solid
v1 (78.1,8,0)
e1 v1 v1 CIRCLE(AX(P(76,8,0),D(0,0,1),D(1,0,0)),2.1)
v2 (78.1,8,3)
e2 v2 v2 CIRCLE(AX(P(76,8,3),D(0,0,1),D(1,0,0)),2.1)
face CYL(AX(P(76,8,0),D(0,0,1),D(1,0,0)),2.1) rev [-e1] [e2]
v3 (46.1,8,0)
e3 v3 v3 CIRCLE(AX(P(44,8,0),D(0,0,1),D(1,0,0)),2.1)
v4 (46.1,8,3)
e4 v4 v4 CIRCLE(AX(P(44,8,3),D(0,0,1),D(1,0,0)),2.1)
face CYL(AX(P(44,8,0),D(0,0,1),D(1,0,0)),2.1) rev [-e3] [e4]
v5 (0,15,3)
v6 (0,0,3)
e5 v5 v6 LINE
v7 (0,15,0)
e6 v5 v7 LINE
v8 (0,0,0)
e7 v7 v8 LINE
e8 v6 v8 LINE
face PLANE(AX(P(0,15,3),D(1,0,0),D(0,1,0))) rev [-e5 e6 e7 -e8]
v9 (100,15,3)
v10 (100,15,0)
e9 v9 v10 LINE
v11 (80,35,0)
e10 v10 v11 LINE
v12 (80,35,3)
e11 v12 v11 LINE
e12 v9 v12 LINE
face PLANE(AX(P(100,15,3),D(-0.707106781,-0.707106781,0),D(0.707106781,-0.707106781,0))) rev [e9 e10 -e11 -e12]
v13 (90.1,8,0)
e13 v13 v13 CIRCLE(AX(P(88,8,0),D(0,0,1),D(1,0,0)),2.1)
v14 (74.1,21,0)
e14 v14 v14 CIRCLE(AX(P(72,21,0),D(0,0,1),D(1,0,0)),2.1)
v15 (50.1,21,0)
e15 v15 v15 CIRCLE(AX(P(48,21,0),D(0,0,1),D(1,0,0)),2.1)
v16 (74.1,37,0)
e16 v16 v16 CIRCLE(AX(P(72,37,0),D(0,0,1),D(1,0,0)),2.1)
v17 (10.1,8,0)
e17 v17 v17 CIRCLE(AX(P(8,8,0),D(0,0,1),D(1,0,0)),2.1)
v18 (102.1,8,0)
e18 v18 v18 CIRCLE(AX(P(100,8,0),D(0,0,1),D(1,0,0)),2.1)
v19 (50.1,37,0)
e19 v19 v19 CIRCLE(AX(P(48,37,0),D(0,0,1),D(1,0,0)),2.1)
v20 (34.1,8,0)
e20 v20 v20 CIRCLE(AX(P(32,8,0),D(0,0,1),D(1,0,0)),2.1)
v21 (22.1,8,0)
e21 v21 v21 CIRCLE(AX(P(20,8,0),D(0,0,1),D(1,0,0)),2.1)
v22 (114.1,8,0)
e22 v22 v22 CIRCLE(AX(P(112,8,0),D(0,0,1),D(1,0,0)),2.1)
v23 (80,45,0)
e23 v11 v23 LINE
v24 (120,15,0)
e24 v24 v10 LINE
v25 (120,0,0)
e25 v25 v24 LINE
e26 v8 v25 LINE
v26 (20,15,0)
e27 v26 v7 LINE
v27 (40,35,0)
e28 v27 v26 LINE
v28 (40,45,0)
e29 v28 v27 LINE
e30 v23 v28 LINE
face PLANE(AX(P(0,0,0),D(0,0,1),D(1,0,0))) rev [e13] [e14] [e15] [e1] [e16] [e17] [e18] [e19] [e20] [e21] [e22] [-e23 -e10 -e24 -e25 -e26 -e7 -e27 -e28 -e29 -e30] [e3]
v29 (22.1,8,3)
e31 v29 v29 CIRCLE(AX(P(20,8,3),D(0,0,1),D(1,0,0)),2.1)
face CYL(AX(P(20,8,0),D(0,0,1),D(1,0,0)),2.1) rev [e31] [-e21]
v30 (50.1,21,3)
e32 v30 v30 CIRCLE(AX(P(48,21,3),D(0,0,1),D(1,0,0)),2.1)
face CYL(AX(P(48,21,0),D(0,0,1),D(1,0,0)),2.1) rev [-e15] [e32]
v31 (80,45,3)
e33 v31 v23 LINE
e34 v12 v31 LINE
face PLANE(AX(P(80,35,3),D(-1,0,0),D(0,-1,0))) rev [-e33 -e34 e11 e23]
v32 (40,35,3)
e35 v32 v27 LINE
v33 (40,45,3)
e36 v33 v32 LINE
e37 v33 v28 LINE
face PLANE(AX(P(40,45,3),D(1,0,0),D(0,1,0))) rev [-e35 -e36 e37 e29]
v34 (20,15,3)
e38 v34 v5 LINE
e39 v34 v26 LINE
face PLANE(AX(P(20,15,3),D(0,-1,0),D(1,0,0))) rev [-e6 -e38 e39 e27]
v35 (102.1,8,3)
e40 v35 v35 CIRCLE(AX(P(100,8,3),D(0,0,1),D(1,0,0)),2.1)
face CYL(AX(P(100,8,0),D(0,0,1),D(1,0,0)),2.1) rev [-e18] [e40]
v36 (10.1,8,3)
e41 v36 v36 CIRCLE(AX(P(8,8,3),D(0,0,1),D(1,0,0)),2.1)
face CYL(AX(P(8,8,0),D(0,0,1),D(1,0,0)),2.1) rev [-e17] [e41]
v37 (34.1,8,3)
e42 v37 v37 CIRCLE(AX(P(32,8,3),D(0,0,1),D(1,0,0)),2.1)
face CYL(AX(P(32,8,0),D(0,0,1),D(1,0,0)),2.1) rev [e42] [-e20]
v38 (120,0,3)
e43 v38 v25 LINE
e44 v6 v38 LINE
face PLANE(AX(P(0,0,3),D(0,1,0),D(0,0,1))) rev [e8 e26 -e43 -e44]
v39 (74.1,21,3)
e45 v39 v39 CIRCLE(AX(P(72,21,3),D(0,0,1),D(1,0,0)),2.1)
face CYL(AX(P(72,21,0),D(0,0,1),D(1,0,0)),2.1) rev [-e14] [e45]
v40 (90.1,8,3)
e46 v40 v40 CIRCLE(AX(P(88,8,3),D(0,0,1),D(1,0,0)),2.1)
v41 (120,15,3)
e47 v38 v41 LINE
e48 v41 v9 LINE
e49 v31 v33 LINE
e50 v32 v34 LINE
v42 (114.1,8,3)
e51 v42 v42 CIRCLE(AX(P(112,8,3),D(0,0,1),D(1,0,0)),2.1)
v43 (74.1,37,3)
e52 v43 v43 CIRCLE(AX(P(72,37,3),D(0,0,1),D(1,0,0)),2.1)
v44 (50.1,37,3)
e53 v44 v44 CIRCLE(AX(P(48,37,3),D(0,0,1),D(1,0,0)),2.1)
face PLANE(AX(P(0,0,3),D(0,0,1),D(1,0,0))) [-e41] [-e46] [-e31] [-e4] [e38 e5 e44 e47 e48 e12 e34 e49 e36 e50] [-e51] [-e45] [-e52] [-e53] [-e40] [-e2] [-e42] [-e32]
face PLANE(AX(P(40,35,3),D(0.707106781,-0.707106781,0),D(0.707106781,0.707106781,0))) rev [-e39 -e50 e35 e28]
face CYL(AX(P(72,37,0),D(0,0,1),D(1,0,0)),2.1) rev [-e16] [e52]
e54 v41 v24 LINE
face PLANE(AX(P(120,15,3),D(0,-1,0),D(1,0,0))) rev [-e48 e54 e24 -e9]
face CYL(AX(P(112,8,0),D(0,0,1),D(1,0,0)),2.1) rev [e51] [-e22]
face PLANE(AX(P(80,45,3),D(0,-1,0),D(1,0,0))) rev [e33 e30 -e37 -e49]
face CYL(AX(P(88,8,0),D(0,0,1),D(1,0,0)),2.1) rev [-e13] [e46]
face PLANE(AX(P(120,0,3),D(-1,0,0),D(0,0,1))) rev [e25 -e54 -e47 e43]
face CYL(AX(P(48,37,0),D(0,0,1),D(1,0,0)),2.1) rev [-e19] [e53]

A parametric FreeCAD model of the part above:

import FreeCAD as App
import Part
import Sketcher
from FreeCAD import Vector
Q = App.Units.Quantity


def add_polygon(sketch, points):
    """Adds a closed chain of lines whose ends are joined by coincident constraints."""
    first, n = sketch.GeometryCount, len(points)
    for a, b in zip(points, points[1:] + points[:1]):
        sketch.addGeometry(Part.LineSegment(App.Vector(*a, 0), App.Vector(*b, 0)), False)
    for i in range(n):
        sketch.addConstraint(Sketcher.Constraint("Coincident", first + i, 2, first + (i + 1) % n, 1))

doc = App.newDocument("Part")
body = doc.addObject("PartDesign::Body", "Body")

# Sketch on XY plane
sketch1 = body.newObject("Sketcher::SketchObject", "Sketch")
sketch1.AttachmentSupport = (doc.getObject("XY_Plane"), [""])
sketch1.MapMode = "FlatFace"
add_polygon(sketch1, [(0, 0), (120, 0), (120, 15), (100, 15), (80, 35), (80, 45), (40, 45), (40, 35), (20, 15), (0, 15)])  # lines 0-9
sketch1.addConstraint(Sketcher.Constraint("Horizontal", 0))
sketch1.addConstraint(Sketcher.Constraint("Vertical", 1))
sketch1.addConstraint(Sketcher.Constraint("Horizontal", 2))
sketch1.addConstraint(Sketcher.Constraint("Vertical", 4))
sketch1.addConstraint(Sketcher.Constraint("Horizontal", 5))
sketch1.addConstraint(Sketcher.Constraint("Vertical", 6))
sketch1.addConstraint(Sketcher.Constraint("Horizontal", 8))
sketch1.addConstraint(Sketcher.Constraint("Vertical", 9))
sketch1.addConstraint(Sketcher.Constraint("Coincident", 9, 2, -1, 1))
sketch1.addConstraint(Sketcher.Constraint("Perpendicular", 3, 7))
sketch1.addConstraint(Sketcher.Constraint("Horizontal", 3, 2, 6, 2))
sketch1.addConstraint(Sketcher.Constraint("Horizontal", 2, 2, 7, 2))
sketch1.addConstraint(Sketcher.Constraint("Equal", 2, 8))
sketch1.addConstraint(Sketcher.Constraint("Equal", 3, 7))
sketch1.addConstraint(Sketcher.Constraint("DistanceX", 0, 1, 0, 2, Q("120 mm")))
sketch1.addConstraint(Sketcher.Constraint("DistanceX", 2, 2, 2, 1, Q("20 mm")))
sketch1.addConstraint(Sketcher.Constraint("DistanceX", 5, 2, 5, 1, Q("40 mm")))
sketch1.addConstraint(Sketcher.Constraint("DistanceY", 1, 1, 1, 2, Q("15 mm")))
sketch1.addConstraint(Sketcher.Constraint("DistanceY", 4, 1, 4, 2, Q("10 mm")))
pad1 = body.newObject("PartDesign::Pad", "Pad")
pad1.Profile = sketch1
pad1.Length = 3

# Sketch on XY plane
sketch2 = body.newObject("Sketcher::SketchObject", "Sketch001")
sketch2.AttachmentSupport = (doc.getObject("XY_Plane"), [""])
sketch2.MapMode = "FlatFace"
sketch2.AttachmentOffset = App.Placement(Vector(0, 0, 3), App.Rotation())
sketch2.addGeometry(Part.Circle(Vector(48, 37, 0), Vector(0, 0, 1), 2.1), False)
sketch2.addGeometry(Part.Circle(Vector(72, 37, 0), Vector(0, 0, 1), 2.1), False)
sketch2.addGeometry(Part.Circle(Vector(48, 21, 0), Vector(0, 0, 1), 2.1), False)
sketch2.addGeometry(Part.Circle(Vector(72, 21, 0), Vector(0, 0, 1), 2.1), False)
sketch2.addGeometry(Part.Circle(Vector(8, 8, 0), Vector(0, 0, 1), 2.1), False)
sketch2.addGeometry(Part.Circle(Vector(20, 8, 0), Vector(0, 0, 1), 2.1), False)
sketch2.addGeometry(Part.Circle(Vector(100, 8, 0), Vector(0, 0, 1), 2.1), False)
sketch2.addGeometry(Part.Circle(Vector(112, 8, 0), Vector(0, 0, 1), 2.1), False)
sketch2.addConstraint(Sketcher.Constraint("Equal", 0, 1))
sketch2.addConstraint(Sketcher.Constraint("Equal", 1, 2))
sketch2.addConstraint(Sketcher.Constraint("Equal", 2, 3))
sketch2.addConstraint(Sketcher.Constraint("Equal", 3, 4))
sketch2.addConstraint(Sketcher.Constraint("Equal", 4, 5))
sketch2.addConstraint(Sketcher.Constraint("Equal", 5, 6))
sketch2.addConstraint(Sketcher.Constraint("Equal", 6, 7))
sketch2.addConstraint(Sketcher.Constraint("Horizontal", 0, 3, 1, 3))
sketch2.addConstraint(Sketcher.Constraint("Horizontal", 2, 3, 3, 3))
sketch2.addConstraint(Sketcher.Constraint("Horizontal", 4, 3, 5, 3))
sketch2.addConstraint(Sketcher.Constraint("Horizontal", 5, 3, 6, 3))
sketch2.addConstraint(Sketcher.Constraint("Horizontal", 6, 3, 7, 3))
sketch2.addConstraint(Sketcher.Constraint("Vertical", 0, 3, 2, 3))
sketch2.addConstraint(Sketcher.Constraint("Vertical", 1, 3, 3, 3))
sketch2.addConstraint(Sketcher.Constraint("Diameter", 0, Q("4.2 mm")))
sketch2.addConstraint(Sketcher.Constraint("DistanceX", -1, 1, 0, 3, Q("48 mm")))
sketch2.addConstraint(Sketcher.Constraint("DistanceY", -1, 1, 0, 3, Q("37 mm")))
sketch2.addConstraint(Sketcher.Constraint("DistanceX", -1, 1, 1, 3, Q("72 mm")))
sketch2.addConstraint(Sketcher.Constraint("DistanceY", -1, 1, 2, 3, Q("21 mm")))
sketch2.addConstraint(Sketcher.Constraint("DistanceX", -1, 1, 4, 3, Q("8 mm")))
sketch2.addConstraint(Sketcher.Constraint("DistanceY", -1, 1, 4, 3, Q("8 mm")))
sketch2.addConstraint(Sketcher.Constraint("DistanceX", -1, 1, 5, 3, Q("20 mm")))
sketch2.addConstraint(Sketcher.Constraint("DistanceX", -1, 1, 6, 3, Q("100 mm")))
sketch2.addConstraint(Sketcher.Constraint("DistanceX", -1, 1, 7, 3, Q("112 mm")))
pocket1 = body.newObject("PartDesign::Pocket", "Pocket")
pocket1.Profile = sketch2
pocket1.Length = 3

# Sketch on XY plane
sketch3 = body.newObject("Sketcher::SketchObject", "Sketch002")
sketch3.AttachmentSupport = (doc.getObject("XY_Plane"), [""])
sketch3.MapMode = "FlatFace"
sketch3.AttachmentOffset = App.Placement(Vector(0, 0, 3), App.Rotation())
sketch3.addGeometry(Part.Circle(Vector(32, 8, 0), Vector(0, 0, 1), 2.1), False)
sketch3.addGeometry(Part.Circle(Vector(44, 8, 0), Vector(0, 0, 1), 2.1), False)
sketch3.addGeometry(Part.Circle(Vector(76, 8, 0), Vector(0, 0, 1), 2.1), False)
sketch3.addGeometry(Part.Circle(Vector(88, 8, 0), Vector(0, 0, 1), 2.1), False)
sketch3.addConstraint(Sketcher.Constraint("Equal", 0, 1))
sketch3.addConstraint(Sketcher.Constraint("Equal", 1, 2))
sketch3.addConstraint(Sketcher.Constraint("Equal", 2, 3))
sketch3.addConstraint(Sketcher.Constraint("Horizontal", 0, 3, 1, 3))
sketch3.addConstraint(Sketcher.Constraint("Horizontal", 1, 3, 2, 3))
sketch3.addConstraint(Sketcher.Constraint("Horizontal", 2, 3, 3, 3))
sketch3.addConstraint(Sketcher.Constraint("Diameter", 0, Q("4.2 mm")))
sketch3.addConstraint(Sketcher.Constraint("DistanceX", -1, 1, 0, 3, Q("32 mm")))
sketch3.addConstraint(Sketcher.Constraint("DistanceY", -1, 1, 0, 3, Q("8 mm")))
sketch3.addConstraint(Sketcher.Constraint("DistanceX", -1, 1, 1, 3, Q("44 mm")))
sketch3.addConstraint(Sketcher.Constraint("DistanceX", -1, 1, 2, 3, Q("76 mm")))
sketch3.addConstraint(Sketcher.Constraint("DistanceX", -1, 1, 3, 3, Q("88 mm")))
pocket2 = body.newObject("PartDesign::Pocket", "Pocket001")
pocket2.Profile = sketch3
pocket2.Type = "ThroughAll"

doc.recompute()
